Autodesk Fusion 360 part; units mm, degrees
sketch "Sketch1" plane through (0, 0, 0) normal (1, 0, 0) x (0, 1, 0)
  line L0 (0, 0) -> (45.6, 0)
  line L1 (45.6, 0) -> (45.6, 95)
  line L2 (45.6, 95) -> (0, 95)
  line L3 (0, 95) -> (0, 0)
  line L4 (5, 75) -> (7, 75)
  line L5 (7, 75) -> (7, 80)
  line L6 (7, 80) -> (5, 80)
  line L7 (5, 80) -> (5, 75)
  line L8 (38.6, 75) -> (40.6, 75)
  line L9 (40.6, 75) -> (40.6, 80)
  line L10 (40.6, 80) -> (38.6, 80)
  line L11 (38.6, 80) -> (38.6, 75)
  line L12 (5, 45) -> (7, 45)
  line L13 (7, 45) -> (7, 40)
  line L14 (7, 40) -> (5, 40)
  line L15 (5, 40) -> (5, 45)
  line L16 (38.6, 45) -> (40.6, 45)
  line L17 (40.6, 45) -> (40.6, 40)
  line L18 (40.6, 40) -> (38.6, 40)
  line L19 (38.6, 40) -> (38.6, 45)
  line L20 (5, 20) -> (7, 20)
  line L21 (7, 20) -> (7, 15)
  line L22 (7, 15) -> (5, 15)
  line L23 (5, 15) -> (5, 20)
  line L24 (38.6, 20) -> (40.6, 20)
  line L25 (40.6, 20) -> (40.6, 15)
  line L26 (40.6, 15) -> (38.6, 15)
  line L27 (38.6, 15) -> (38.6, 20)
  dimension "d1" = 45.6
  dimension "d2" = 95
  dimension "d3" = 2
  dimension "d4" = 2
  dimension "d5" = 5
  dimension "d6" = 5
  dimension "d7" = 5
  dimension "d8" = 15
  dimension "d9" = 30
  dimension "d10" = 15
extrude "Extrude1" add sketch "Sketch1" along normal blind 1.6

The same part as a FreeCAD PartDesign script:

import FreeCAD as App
import Part
import Sketcher
Q = App.Units.Quantity

doc = App.newDocument("Part")
params = doc.addObject("Spreadsheet::Sheet", "Params")
for row, (alias, value) in enumerate([
    ("sketch1_width", "2 mm"),
    ("sketch1_height", "95 mm"),
    ("sketch1_height2", "5 mm"),
    ("sketch1_width2", "45.6 mm"),
    ("pad1_length", "1.6 mm"),
], start=1):
    params.set(f"A{row}", alias)
    params.set(f"B{row}", "=" + value)
    params.setAlias(f"B{row}", alias)

body = doc.addObject("PartDesign::Body", "Body")

# Sketch on YZ plane
sketch1 = body.newObject("Sketcher::SketchObject", "Sketch")
sketch1.AttachmentSupport = (doc.getObject("YZ_Plane"), [""])
sketch1.MapMode = "FlatFace"
sketch1.addGeometry(Part.LineSegment(App.Vector(0, 95, 0), App.Vector(0, 0, 0)), False)
sketch1.addGeometry(Part.LineSegment(App.Vector(0, 0, 0), App.Vector(45.6, 0, 0)), False)
sketch1.addGeometry(Part.LineSegment(App.Vector(45.6, 0, 0), App.Vector(45.6, 95, 0)), False)
sketch1.addGeometry(Part.LineSegment(App.Vector(45.6, 95, 0), App.Vector(0, 95, 0)), False)
sketch1.addGeometry(Part.LineSegment(App.Vector(5, 15, 0), App.Vector(5, 20, 0)), False)
sketch1.addGeometry(Part.LineSegment(App.Vector(5, 20, 0), App.Vector(7, 20, 0)), False)
sketch1.addGeometry(Part.LineSegment(App.Vector(7, 20, 0), App.Vector(7, 15, 0)), False)
sketch1.addGeometry(Part.LineSegment(App.Vector(7, 15, 0), App.Vector(5, 15, 0)), False)
sketch1.addGeometry(Part.LineSegment(App.Vector(5, 40, 0), App.Vector(5, 45, 0)), False)
sketch1.addGeometry(Part.LineSegment(App.Vector(5, 45, 0), App.Vector(7, 45, 0)), False)
sketch1.addGeometry(Part.LineSegment(App.Vector(7, 45, 0), App.Vector(7, 40, 0)), False)
sketch1.addGeometry(Part.LineSegment(App.Vector(7, 40, 0), App.Vector(5, 40, 0)), False)
sketch1.addGeometry(Part.LineSegment(App.Vector(38.6, 15, 0), App.Vector(38.6, 20, 0)), False)
sketch1.addGeometry(Part.LineSegment(App.Vector(38.6, 20, 0), App.Vector(40.6, 20, 0)), False)
sketch1.addGeometry(Part.LineSegment(App.Vector(40.6, 20, 0), App.Vector(40.6, 15, 0)), False)
sketch1.addGeometry(Part.LineSegment(App.Vector(40.6, 15, 0), App.Vector(38.6, 15, 0)), False)
sketch1.addGeometry(Part.LineSegment(App.Vector(38.6, 40, 0), App.Vector(38.6, 45, 0)), False)
sketch1.addGeometry(Part.LineSegment(App.Vector(38.6, 45, 0), App.Vector(40.6, 45, 0)), False)
sketch1.addGeometry(Part.LineSegment(App.Vector(40.6, 45, 0), App.Vector(40.6, 40, 0)), False)
sketch1.addGeometry(Part.LineSegment(App.Vector(40.6, 40, 0), App.Vector(38.6, 40, 0)), False)
sketch1.addGeometry(Part.LineSegment(App.Vector(7, 75, 0), App.Vector(5, 75, 0)), False)
sketch1.addGeometry(Part.LineSegment(App.Vector(5, 75, 0), App.Vector(5, 80, 0)), False)
sketch1.addGeometry(Part.LineSegment(App.Vector(5, 80, 0), App.Vector(7, 80, 0)), False)
sketch1.addGeometry(Part.LineSegment(App.Vector(7, 80, 0), App.Vector(7, 75, 0)), False)
sketch1.addGeometry(Part.LineSegment(App.Vector(40.6, 75, 0), App.Vector(38.6, 75, 0)), False)
sketch1.addGeometry(Part.LineSegment(App.Vector(38.6, 75, 0), App.Vector(38.6, 80, 0)), False)
sketch1.addGeometry(Part.LineSegment(App.Vector(38.6, 80, 0), App.Vector(40.6, 80, 0)), False)
sketch1.addGeometry(Part.LineSegment(App.Vector(40.6, 80, 0), App.Vector(40.6, 75, 0)), False)
sketch1.addConstraint(Sketcher.Constraint("Coincident", 0, 2, 1, 1))
sketch1.addConstraint(Sketcher.Constraint("Coincident", 1, 2, 2, 1))
sketch1.addConstraint(Sketcher.Constraint("Coincident", 2, 2, 3, 1))
sketch1.addConstraint(Sketcher.Constraint("Coincident", 3, 2, 0, 1))
sketch1.addConstraint(Sketcher.Constraint("Coincident", 4, 2, 5, 1))
sketch1.addConstraint(Sketcher.Constraint("Coincident", 5, 2, 6, 1))
sketch1.addConstraint(Sketcher.Constraint("Coincident", 6, 2, 7, 1))
sketch1.addConstraint(Sketcher.Constraint("Coincident", 7, 2, 4, 1))
sketch1.addConstraint(Sketcher.Constraint("Coincident", 8, 2, 9, 1))
sketch1.addConstraint(Sketcher.Constraint("Coincident", 9, 2, 10, 1))
sketch1.addConstraint(Sketcher.Constraint("Coincident", 10, 2, 11, 1))
sketch1.addConstraint(Sketcher.Constraint("Coincident", 11, 2, 8, 1))
sketch1.addConstraint(Sketcher.Constraint("Coincident", 12, 2, 13, 1))
sketch1.addConstraint(Sketcher.Constraint("Coincident", 13, 2, 14, 1))
sketch1.addConstraint(Sketcher.Constraint("Coincident", 14, 2, 15, 1))
sketch1.addConstraint(Sketcher.Constraint("Coincident", 15, 2, 12, 1))
sketch1.addConstraint(Sketcher.Constraint("Coincident", 16, 2, 17, 1))
sketch1.addConstraint(Sketcher.Constraint("Coincident", 17, 2, 18, 1))
sketch1.addConstraint(Sketcher.Constraint("Coincident", 18, 2, 19, 1))
sketch1.addConstraint(Sketcher.Constraint("Coincident", 19, 2, 16, 1))
sketch1.addConstraint(Sketcher.Constraint("Coincident", 20, 2, 21, 1))
sketch1.addConstraint(Sketcher.Constraint("Coincident", 21, 2, 22, 1))
sketch1.addConstraint(Sketcher.Constraint("Coincident", 22, 2, 23, 1))
sketch1.addConstraint(Sketcher.Constraint("Coincident", 23, 2, 20, 1))
sketch1.addConstraint(Sketcher.Constraint("Coincident", 24, 2, 25, 1))
sketch1.addConstraint(Sketcher.Constraint("Coincident", 25, 2, 26, 1))
sketch1.addConstraint(Sketcher.Constraint("Coincident", 26, 2, 27, 1))
sketch1.addConstraint(Sketcher.Constraint("Coincident", 27, 2, 24, 1))
sketch1.addConstraint(Sketcher.Constraint("Vertical", 0))
sketch1.addConstraint(Sketcher.Constraint("Horizontal", 1))
sketch1.addConstraint(Sketcher.Constraint("Vertical", 2))
sketch1.addConstraint(Sketcher.Constraint("Horizontal", 3))
sketch1.addConstraint(Sketcher.Constraint("Vertical", 4))
sketch1.addConstraint(Sketcher.Constraint("Horizontal", 5))
sketch1.addConstraint(Sketcher.Constraint("Vertical", 6))
sketch1.addConstraint(Sketcher.Constraint("Horizontal", 7))
sketch1.addConstraint(Sketcher.Constraint("Vertical", 8))
sketch1.addConstraint(Sketcher.Constraint("Horizontal", 9))
sketch1.addConstraint(Sketcher.Constraint("Vertical", 10))
sketch1.addConstraint(Sketcher.Constraint("Horizontal", 11))
sketch1.addConstraint(Sketcher.Constraint("Vertical", 12))
sketch1.addConstraint(Sketcher.Constraint("Horizontal", 13))
sketch1.addConstraint(Sketcher.Constraint("Vertical", 14))
sketch1.addConstraint(Sketcher.Constraint("Horizontal", 15))
sketch1.addConstraint(Sketcher.Constraint("Vertical", 16))
sketch1.addConstraint(Sketcher.Constraint("Horizontal", 17))
sketch1.addConstraint(Sketcher.Constraint("Vertical", 18))
sketch1.addConstraint(Sketcher.Constraint("Horizontal", 19))
sketch1.addConstraint(Sketcher.Constraint("Horizontal", 20))
sketch1.addConstraint(Sketcher.Constraint("Vertical", 21))
sketch1.addConstraint(Sketcher.Constraint("Horizontal", 22))
sketch1.addConstraint(Sketcher.Constraint("Vertical", 23))
sketch1.addConstraint(Sketcher.Constraint("Horizontal", 24))
sketch1.addConstraint(Sketcher.Constraint("Vertical", 25))
sketch1.addConstraint(Sketcher.Constraint("Horizontal", 26))
sketch1.addConstraint(Sketcher.Constraint("Vertical", 27))
sketch1.addConstraint(Sketcher.Constraint("Coincident", 0, 2, -1, 1))
sketch1.addConstraint(Sketcher.Constraint("Horizontal", 5, 2, 12, 2))
sketch1.addConstraint(Sketcher.Constraint("Horizontal", 7, 2, 14, 2))
sketch1.addConstraint(Sketcher.Constraint("Horizontal", 9, 2, 16, 2))
sketch1.addConstraint(Sketcher.Constraint("Horizontal", 11, 2, 18, 2))
sketch1.addConstraint(Sketcher.Constraint("Horizontal", 23, 2, 24, 2))
sketch1.addConstraint(Sketcher.Constraint("Horizontal", 22, 2, 25, 2))
sketch1.addConstraint(Sketcher.Constraint("Vertical", 7, 2, 8, 2))
sketch1.addConstraint(Sketcher.Constraint("Vertical", 6, 2, 9, 2))
sketch1.addConstraint(Sketcher.Constraint("Vertical", 15, 2, 16, 2))
sketch1.addConstraint(Sketcher.Constraint("Vertical", 14, 2, 17, 2))
sketch1.addConstraint(Sketcher.Constraint("Vertical", 11, 2, 20, 2))
sketch1.addConstraint(Sketcher.Constraint("Vertical", 10, 2, 22, 2))
sketch1.addConstraint(Sketcher.Constraint("Vertical", 19, 2, 24, 2))
sketch1.addConstraint(Sketcher.Constraint("Vertical", 18, 2, 26, 2))
sketch1.addConstraint(Sketcher.Constraint("Equal", 11, 13))
sketch1.addConstraint(Sketcher.Constraint("Equal", 6, 8))
sketch1.addConstraint(Sketcher.Constraint("Equal", 18, 21))
sketch1.addConstraint(Sketcher.Constraint("DistanceX", 5, 1, 5, 2, Q("2 mm")))
sketch1.addConstraint(Sketcher.Constraint("DistanceY", 0, 2, 0, 1, Q("95 mm")))
sketch1.addConstraint(Sketcher.Constraint("DistanceY", 4, 1, 4, 2, Q("5 mm")))
sketch1.addConstraint(Sketcher.Constraint("DistanceX", 1, 1, 1, 2, Q("45.6 mm")))
sketch1.addConstraint(Sketcher.Constraint("DistanceX", -1, 1, 4, 2, Q("5 mm")))
sketch1.addConstraint(Sketcher.Constraint("DistanceY", -1, 1, 6, 2, Q("15 mm")))
sketch1.addConstraint(Sketcher.Constraint("DistanceY", 7, 2, 8, 2, Q("30 mm")))
sketch1.addConstraint(Sketcher.Constraint("DistanceX", 13, 2, 1, 2, Q("5 mm")))
sketch1.addConstraint(Sketcher.Constraint("DistanceY", 8, 2, 20, 2, Q("30 mm")))
sketch1.setExpression("Constraints[74]", "Params.sketch1_width")
sketch1.setExpression("Constraints[75]", "Params.sketch1_height")
sketch1.setExpression("Constraints[76]", "Params.sketch1_height2")
sketch1.setExpression("Constraints[77]", "Params.sketch1_width2")
pad1 = body.newObject("PartDesign::Pad", "Pad")
pad1.Profile = sketch1
pad1.setExpression("Length", "Params.pad1_length")

doc.recompute()
